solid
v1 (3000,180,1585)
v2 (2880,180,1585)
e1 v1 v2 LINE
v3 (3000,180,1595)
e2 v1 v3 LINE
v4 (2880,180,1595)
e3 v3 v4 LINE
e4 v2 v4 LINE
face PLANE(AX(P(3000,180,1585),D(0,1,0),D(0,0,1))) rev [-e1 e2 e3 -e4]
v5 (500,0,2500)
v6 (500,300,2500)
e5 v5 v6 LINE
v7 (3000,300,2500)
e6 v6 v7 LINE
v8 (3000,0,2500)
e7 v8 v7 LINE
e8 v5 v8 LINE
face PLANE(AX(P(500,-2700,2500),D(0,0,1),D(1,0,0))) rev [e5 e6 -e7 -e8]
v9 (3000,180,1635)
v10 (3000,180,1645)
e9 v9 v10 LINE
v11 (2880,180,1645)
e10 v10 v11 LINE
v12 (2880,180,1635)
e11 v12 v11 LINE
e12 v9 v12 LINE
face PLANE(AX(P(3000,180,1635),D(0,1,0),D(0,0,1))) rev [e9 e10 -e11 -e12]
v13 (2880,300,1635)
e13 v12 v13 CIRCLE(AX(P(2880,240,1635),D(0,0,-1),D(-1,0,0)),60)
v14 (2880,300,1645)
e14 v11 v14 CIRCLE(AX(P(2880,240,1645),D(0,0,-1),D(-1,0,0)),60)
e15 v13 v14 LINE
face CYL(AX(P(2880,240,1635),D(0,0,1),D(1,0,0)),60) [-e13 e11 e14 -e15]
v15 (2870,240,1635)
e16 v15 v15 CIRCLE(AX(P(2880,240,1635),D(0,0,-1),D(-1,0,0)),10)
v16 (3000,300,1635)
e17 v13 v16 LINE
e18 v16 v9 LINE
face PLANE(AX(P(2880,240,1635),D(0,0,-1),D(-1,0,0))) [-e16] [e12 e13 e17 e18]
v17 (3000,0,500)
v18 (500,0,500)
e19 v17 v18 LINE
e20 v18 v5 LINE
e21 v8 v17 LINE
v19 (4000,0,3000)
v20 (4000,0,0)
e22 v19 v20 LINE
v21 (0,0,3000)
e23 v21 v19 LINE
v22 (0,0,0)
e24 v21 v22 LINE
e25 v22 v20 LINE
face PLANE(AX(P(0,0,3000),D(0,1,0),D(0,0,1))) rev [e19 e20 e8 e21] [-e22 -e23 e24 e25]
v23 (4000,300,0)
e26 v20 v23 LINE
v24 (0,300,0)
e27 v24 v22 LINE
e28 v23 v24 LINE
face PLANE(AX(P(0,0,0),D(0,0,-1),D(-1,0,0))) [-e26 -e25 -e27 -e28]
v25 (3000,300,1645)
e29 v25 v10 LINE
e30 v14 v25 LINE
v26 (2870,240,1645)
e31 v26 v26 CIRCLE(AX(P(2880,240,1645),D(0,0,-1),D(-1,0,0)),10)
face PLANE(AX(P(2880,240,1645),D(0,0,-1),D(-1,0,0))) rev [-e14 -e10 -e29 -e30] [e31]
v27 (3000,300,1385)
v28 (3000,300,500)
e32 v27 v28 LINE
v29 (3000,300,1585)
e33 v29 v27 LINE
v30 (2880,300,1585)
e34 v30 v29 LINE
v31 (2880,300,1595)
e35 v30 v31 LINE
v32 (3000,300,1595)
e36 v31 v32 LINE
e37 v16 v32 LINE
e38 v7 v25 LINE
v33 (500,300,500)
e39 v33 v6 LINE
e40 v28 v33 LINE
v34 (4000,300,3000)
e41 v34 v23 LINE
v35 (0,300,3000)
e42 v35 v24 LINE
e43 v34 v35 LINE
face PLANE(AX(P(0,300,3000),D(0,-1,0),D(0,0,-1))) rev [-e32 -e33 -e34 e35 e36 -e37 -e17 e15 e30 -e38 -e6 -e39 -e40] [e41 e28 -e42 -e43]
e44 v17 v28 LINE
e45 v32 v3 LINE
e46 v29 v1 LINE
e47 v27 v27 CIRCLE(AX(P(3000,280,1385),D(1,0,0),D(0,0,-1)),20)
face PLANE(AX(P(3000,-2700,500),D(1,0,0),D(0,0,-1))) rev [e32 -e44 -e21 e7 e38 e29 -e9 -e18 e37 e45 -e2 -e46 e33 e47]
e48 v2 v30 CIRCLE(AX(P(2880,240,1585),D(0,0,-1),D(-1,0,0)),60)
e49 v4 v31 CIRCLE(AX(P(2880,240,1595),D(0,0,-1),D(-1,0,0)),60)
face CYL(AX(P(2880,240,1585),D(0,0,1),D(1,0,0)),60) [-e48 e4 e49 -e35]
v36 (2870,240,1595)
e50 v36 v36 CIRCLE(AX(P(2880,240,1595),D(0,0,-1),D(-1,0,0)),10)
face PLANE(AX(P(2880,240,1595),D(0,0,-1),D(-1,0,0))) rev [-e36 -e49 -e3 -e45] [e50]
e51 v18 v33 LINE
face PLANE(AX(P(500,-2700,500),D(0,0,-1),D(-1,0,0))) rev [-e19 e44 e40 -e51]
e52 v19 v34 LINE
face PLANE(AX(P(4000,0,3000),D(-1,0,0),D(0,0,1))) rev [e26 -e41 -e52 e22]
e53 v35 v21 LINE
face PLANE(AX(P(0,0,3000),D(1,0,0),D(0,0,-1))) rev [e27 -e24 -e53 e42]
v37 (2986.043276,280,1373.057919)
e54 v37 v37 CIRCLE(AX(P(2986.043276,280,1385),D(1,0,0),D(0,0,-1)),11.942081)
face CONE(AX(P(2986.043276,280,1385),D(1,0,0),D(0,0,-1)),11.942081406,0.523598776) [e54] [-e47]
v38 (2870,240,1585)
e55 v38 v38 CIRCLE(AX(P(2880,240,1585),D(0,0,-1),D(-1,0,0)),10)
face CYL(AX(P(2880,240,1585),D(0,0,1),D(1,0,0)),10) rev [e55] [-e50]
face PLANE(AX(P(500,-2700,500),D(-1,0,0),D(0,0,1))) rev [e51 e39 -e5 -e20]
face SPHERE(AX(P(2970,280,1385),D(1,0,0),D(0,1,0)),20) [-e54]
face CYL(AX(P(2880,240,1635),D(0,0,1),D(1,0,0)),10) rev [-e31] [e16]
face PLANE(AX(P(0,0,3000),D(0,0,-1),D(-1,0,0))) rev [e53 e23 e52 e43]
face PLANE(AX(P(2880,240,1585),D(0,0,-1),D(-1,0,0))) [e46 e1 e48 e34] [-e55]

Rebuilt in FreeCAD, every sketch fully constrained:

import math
import FreeCAD as App
import Part
import Sketcher

V = App.Vector
Q = App.Units.Quantity

doc = App.newDocument("Part")
params = doc.addObject("Spreadsheet::Sheet", "Params")
for row, (alias, value) in enumerate([
    ("sketch1_width", "4000 mm"),
    ("sketch1_height", "300 mm"),
    ("pad1_length", "3000 mm"),
    ("sketch2_width", "2500 mm"),
    ("sketch2_height", "2000 mm"),
    ("pocket1_length", "3000 mm"),
    ("sketch3_diameter", "20 mm"),
    ("sketch3_radius", "60 mm"),
    ("pad2_length", "10 mm"),
    ("sketch4_diameter", "20 mm"),
    ("sketch4_radius", "60 mm"),
    ("pad3_length", "10 mm"),
    ("sketch5_radius", "20 mm"),
    ("sketch5_width", "50 mm"),
    ("sketch5_height", "20 mm"),
    ("revolution_angle", "360 deg"),
], start=1):
    params.set(f"A{row}", alias)
    params.set(f"B{row}", "=" + value)
    params.setAlias(f"B{row}", alias)

body = doc.addObject("PartDesign::Body", "Body")

# Sketch on XY plane
sketch1 = body.newObject("Sketcher::SketchObject", "Sketch")
sketch1.AttachmentSupport = (doc.getObject("XY_Plane"), [""])
sketch1.MapMode = "FlatFace"
sketch1.addGeometry([
    Part.LineSegment(V(0, 300, 0), V(0, 0, 0)),
    Part.LineSegment(V(0, 0, 0), V(4000, 0, 0)),
    Part.LineSegment(V(4000, 0, 0), V(4000, 300, 0)),
    Part.LineSegment(V(4000, 300, 0), V(0, 300, 0)),
], False)
sketch1.addConstraint([
    Sketcher.Constraint("Coincident", 0, 2, 1, 1),
    Sketcher.Constraint("Coincident", 1, 2, 2, 1),
    Sketcher.Constraint("Coincident", 2, 2, 3, 1),
    Sketcher.Constraint("Coincident", 3, 2, 0, 1),
    Sketcher.Constraint("Vertical", 0),
    Sketcher.Constraint("Horizontal", 1),
    Sketcher.Constraint("Vertical", 2),
    Sketcher.Constraint("Horizontal", 3),
    Sketcher.Constraint("Coincident", 0, 2, -1, 1),
    Sketcher.Constraint("DistanceX", 1, 1, 1, 2, Q("4000 mm")),
    Sketcher.Constraint("DistanceY", 0, 2, 0, 1, Q("300 mm")),
])
sketch1.setExpression("Constraints[9]", "Params.sketch1_width")
sketch1.setExpression("Constraints[10]", "Params.sketch1_height")
pad1 = body.newObject("PartDesign::Pad", "Pad")
pad1.Profile = sketch1
pad1.setExpression("Length", "Params.pad1_length")

# Sketch on XZ plane
sketch2 = body.newObject("Sketcher::SketchObject", "Sketch001")
sketch2.AttachmentSupport = (doc.getObject("XZ_Plane"), [""])
sketch2.MapMode = "FlatFace"
sketch2.AttachmentOffset = App.Placement(V(0, 0, -300), App.Rotation())
sketch2.addGeometry([
    Part.LineSegment(V(500, 500, 0), V(500, 2500, 0)),
    Part.LineSegment(V(500, 2500, 0), V(3000, 2500, 0)),
    Part.LineSegment(V(3000, 2500, 0), V(3000, 500, 0)),
    Part.LineSegment(V(3000, 500, 0), V(500, 500, 0)),
], False)
sketch2.addConstraint([
    Sketcher.Constraint("Coincident", 0, 2, 1, 1),
    Sketcher.Constraint("Coincident", 1, 2, 2, 1),
    Sketcher.Constraint("Coincident", 2, 2, 3, 1),
    Sketcher.Constraint("Coincident", 3, 2, 0, 1),
    Sketcher.Constraint("Vertical", 0),
    Sketcher.Constraint("Horizontal", 1),
    Sketcher.Constraint("Vertical", 2),
    Sketcher.Constraint("Horizontal", 3),
    Sketcher.Constraint("DistanceX", 1, 1, 1, 2, Q("2500 mm")),
    Sketcher.Constraint("DistanceY", 0, 1, 0, 2, Q("2000 mm")),
    Sketcher.Constraint("DistanceX", -1, 1, 0, 2, Q("500 mm")),
    Sketcher.Constraint("DistanceY", -1, 1, 0, 2, Q("2500 mm")),
])
sketch2.setExpression("Constraints[8]", "Params.sketch2_width")
sketch2.setExpression("Constraints[9]", "Params.sketch2_height")
pocket1 = body.newObject("PartDesign::Pocket", "Pocket")
pocket1.Profile = sketch2
pocket1.setExpression("Length", "Params.pocket1_length")
pocket1.Reversed = True

# Sketch on XY plane
sketch3 = body.newObject("Sketcher::SketchObject", "Sketch002")
sketch3.AttachmentSupport = (doc.getObject("XY_Plane"), [""])
sketch3.MapMode = "FlatFace"
sketch3.AttachmentOffset = App.Placement(V(0, 0, 1645), App.Rotation())
sketch3.addGeometry([
    Part.LineSegment(V(3000, 300, 0), V(3000, 180, 0)),  # 0
    Part.LineSegment(V(3000, 180, 0), V(2880, 180, 0)),  # 1
    Part.ArcOfCircle(Part.Circle(V(2880, 240, 0), V(0, 0, 1), 60), math.radians(90), math.radians(270)),  # 2
    Part.LineSegment(V(2880, 300, 0), V(3000, 300, 0)),  # 3
    Part.Circle(V(2880, 240, 0), V(0, 0, 1), 10),  # 4
], False)
sketch3.addConstraint([
    Sketcher.Constraint("Coincident", 0, 2, 1, 1),
    Sketcher.Constraint("Tangent", 1, 2, 2, 2),
    Sketcher.Constraint("Tangent", 2, 1, 3, 1),
    Sketcher.Constraint("Coincident", 3, 2, 0, 1),
    Sketcher.Constraint("Vertical", 0),
    Sketcher.Constraint("Horizontal", 1),
    Sketcher.Constraint("Horizontal", 3),
    Sketcher.Constraint("Coincident", 4, 3, 2, 3),
    Sketcher.Constraint("Equal", 3, 0),
    Sketcher.Constraint("Diameter", 4, Q("20 mm")),
    Sketcher.Constraint("Radius", 2, Q("60 mm")),
    Sketcher.Constraint("DistanceX", -1, 1, 2, 3, Q("2880 mm")),
    Sketcher.Constraint("DistanceY", -1, 1, 2, 3, Q("240 mm")),
])
sketch3.setExpression("Constraints[9]", "Params.sketch3_diameter")
sketch3.setExpression("Constraints[10]", "Params.sketch3_radius")
pad2 = body.newObject("PartDesign::Pad", "Pad001")
pad2.Profile = sketch3
pad2.setExpression("Length", "Params.pad2_length")
pad2.Reversed = True

# Sketch on XY plane
sketch4 = body.newObject("Sketcher::SketchObject", "Sketch003")
sketch4.AttachmentSupport = (doc.getObject("XY_Plane"), [""])
sketch4.MapMode = "FlatFace"
sketch4.AttachmentOffset = App.Placement(V(0, 0, 1595), App.Rotation())
sketch4.addGeometry([
    Part.LineSegment(V(3000, 300, 0), V(3000, 180, 0)),  # 0
    Part.LineSegment(V(3000, 180, 0), V(2880, 180, 0)),  # 1
    Part.ArcOfCircle(Part.Circle(V(2880, 240, 0), V(0, 0, 1), 60), math.radians(90), math.radians(270)),  # 2
    Part.LineSegment(V(2880, 300, 0), V(3000, 300, 0)),  # 3
    Part.Circle(V(2880, 240, 0), V(0, 0, 1), 10),  # 4
], False)
sketch4.addConstraint([
    Sketcher.Constraint("Coincident", 0, 2, 1, 1),
    Sketcher.Constraint("Tangent", 1, 2, 2, 2),
    Sketcher.Constraint("Tangent", 2, 1, 3, 1),
    Sketcher.Constraint("Coincident", 3, 2, 0, 1),
    Sketcher.Constraint("Vertical", 0),
    Sketcher.Constraint("Horizontal", 1),
    Sketcher.Constraint("Horizontal", 3),
    Sketcher.Constraint("Coincident", 4, 3, 2, 3),
    Sketcher.Constraint("Equal", 3, 0),
    Sketcher.Constraint("Diameter", 4, Q("20 mm")),
    Sketcher.Constraint("Radius", 2, Q("60 mm")),
    Sketcher.Constraint("DistanceX", -1, 1, 2, 3, Q("2880 mm")),
    Sketcher.Constraint("DistanceY", -1, 1, 2, 3, Q("240 mm")),
])
sketch4.setExpression("Constraints[9]", "Params.sketch4_diameter")
sketch4.setExpression("Constraints[10]", "Params.sketch4_radius")
pad3 = body.newObject("PartDesign::Pad", "Pad002")
pad3.Profile = sketch4
pad3.setExpression("Length", "Params.pad3_length")
pad3.Reversed = True

# Sketch on XY plane
sketch5 = body.newObject("Sketcher::SketchObject", "Sketch004")
sketch5.AttachmentSupport = (doc.getObject("XY_Plane"), [""])
sketch5.MapMode = "FlatFace"
sketch5.AttachmentOffset = App.Placement(V(0, 0, 1385), App.Rotation())
sketch5.addGeometry([
    Part.LineSegment(V(3000, 300, 0), V(3000, 280, 0)),
    Part.LineSegment(V(3000, 280, 0), V(2950, 280, 0)),
    Part.ArcOfCircle(Part.Circle(V(2970, 280, 0), V(0, 0, 1), 20), math.radians(37), math.radians(180)),
    Part.LineSegment(V(2986, 292, 0), V(3000, 300, 0)),
], False)
sketch5.addGeometry(Part.LineSegment(V(3000, 280, 0), V(2950, 280, 0)), True)  # axis
sketch5.addConstraint([
    Sketcher.Constraint("Coincident", 0, 2, 1, 1),
    Sketcher.Constraint("Coincident", 1, 2, 2, 2),
    Sketcher.Constraint("Coincident", 2, 1, 3, 1),
    Sketcher.Constraint("Coincident", 3, 2, 0, 1),
    Sketcher.Constraint("Vertical", 0),
    Sketcher.Constraint("Horizontal", 1),
    Sketcher.Constraint("Horizontal", 4),
    Sketcher.Constraint("Coincident", 4, 1, 0, 2),
    Sketcher.Constraint("Horizontal", 2, 3, 0, 2),
    Sketcher.Constraint("Equal", 1, 4),
    Sketcher.Constraint("Radius", 2, Q("20 mm")),
    Sketcher.Constraint("DistanceX", 1, 2, 1, 1, Q("50 mm")),
    Sketcher.Constraint("DistanceY", 0, 2, 0, 1, Q("20 mm")),
    Sketcher.Constraint("Angle", 3, Q("30 deg")),
    Sketcher.Constraint("DistanceX", -1, 1, 2, 3, Q("2970 mm")),
    Sketcher.Constraint("DistanceY", -1, 1, 2, 3, Q("280 mm")),
])
sketch5.setExpression("Constraints[10]", "Params.sketch5_radius")
sketch5.setExpression("Constraints[11]", "Params.sketch5_width")
sketch5.setExpression("Constraints[12]", "Params.sketch5_height")
revolution = body.newObject("PartDesign::Revolution", "Revolution")
revolution.Profile = sketch5
revolution.ReferenceAxis = (sketch5, ["Axis0"])
revolution.setExpression("Angle", "Params.revolution_angle")

doc.recompute()
